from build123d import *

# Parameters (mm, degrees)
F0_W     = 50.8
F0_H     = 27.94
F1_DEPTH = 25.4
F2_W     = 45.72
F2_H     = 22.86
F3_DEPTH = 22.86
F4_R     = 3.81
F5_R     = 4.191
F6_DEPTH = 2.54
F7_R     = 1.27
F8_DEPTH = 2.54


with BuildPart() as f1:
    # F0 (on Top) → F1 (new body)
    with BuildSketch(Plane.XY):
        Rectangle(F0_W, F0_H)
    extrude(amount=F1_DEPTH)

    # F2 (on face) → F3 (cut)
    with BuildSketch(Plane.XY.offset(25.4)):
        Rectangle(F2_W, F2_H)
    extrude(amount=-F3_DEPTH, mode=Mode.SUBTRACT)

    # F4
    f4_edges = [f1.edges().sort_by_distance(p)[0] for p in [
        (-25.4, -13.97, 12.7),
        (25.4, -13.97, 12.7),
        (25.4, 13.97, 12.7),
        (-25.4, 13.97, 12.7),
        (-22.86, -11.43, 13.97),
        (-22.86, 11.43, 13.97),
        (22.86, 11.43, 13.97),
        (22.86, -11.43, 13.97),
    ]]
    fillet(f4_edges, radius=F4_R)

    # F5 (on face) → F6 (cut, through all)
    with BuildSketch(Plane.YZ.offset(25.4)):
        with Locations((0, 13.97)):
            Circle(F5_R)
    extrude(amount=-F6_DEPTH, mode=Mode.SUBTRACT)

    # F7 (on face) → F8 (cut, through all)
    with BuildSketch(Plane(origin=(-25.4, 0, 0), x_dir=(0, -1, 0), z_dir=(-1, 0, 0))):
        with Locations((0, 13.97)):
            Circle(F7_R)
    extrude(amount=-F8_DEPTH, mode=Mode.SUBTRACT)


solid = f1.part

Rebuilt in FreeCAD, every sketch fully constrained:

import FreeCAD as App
import Part
import Sketcher
from FreeCAD import Vector
Q = App.Units.Quantity


def edges_at(feature, points):
    """Names of the edges that pass closest to the given points."""
    edges = feature.Shape.Edges
    near = lambda p: min(range(len(edges)), key=lambda i: edges[i].distToShape(Part.Vertex(*p))[0])
    return sorted({f"Edge{near(p) + 1}" for p in points})

doc = App.newDocument("Part")
params = doc.addObject("Spreadsheet::Sheet", "Params")
for row, (alias, value) in enumerate([
    ("sketch1_width", "2 in"),
    ("sketch1_height", "1.1 in"),
    ("pad1_length", "1 in"),
    ("sketch2_width", "1.8 in"),
    ("sketch2_height", "0.9 in"),
    ("pocket1_length", "0.9 in"),
    ("fillet_radius", "0.15 in"),
    ("sketch3_diameter", "0.33 in"),
    ("pocket2_length", "0.1 in"),
    ("sketch4_diameter", "0.1 in"),
], start=1):
    params.set(f"A{row}", alias)
    params.set(f"B{row}", "=" + value)
    params.setAlias(f"B{row}", alias)

body = doc.addObject("PartDesign::Body", "Body")

# Sketch on XY plane
sketch1 = body.newObject("Sketcher::SketchObject", "Sketch")
sketch1.AttachmentSupport = (doc.getObject("XY_Plane"), [""])
sketch1.MapMode = "FlatFace"
sketch1.addGeometry(Part.LineSegment(Vector(-25, 14, 0), Vector(-25, -14, 0)), False)
sketch1.addGeometry(Part.LineSegment(Vector(-25, -14, 0), Vector(25, -14, 0)), False)
sketch1.addGeometry(Part.LineSegment(Vector(25, -14, 0), Vector(25, 14, 0)), False)
sketch1.addGeometry(Part.LineSegment(Vector(25, 14, 0), Vector(-25, 14, 0)), False)
sketch1.addConstraint(Sketcher.Constraint("Coincident", 0, 2, 1, 1))
sketch1.addConstraint(Sketcher.Constraint("Coincident", 1, 2, 2, 1))
sketch1.addConstraint(Sketcher.Constraint("Coincident", 2, 2, 3, 1))
sketch1.addConstraint(Sketcher.Constraint("Coincident", 3, 2, 0, 1))
sketch1.addConstraint(Sketcher.Constraint("Vertical", 0))
sketch1.addConstraint(Sketcher.Constraint("Horizontal", 1))
sketch1.addConstraint(Sketcher.Constraint("Vertical", 2))
sketch1.addConstraint(Sketcher.Constraint("Horizontal", 3))
sketch1.addConstraint(Sketcher.Constraint("Symmetric", 0, 2, 2, 2, -1, 1))
sketch1.addConstraint(Sketcher.Constraint("DistanceX", 1, 1, 1, 2, Q("2 in")))
sketch1.addConstraint(Sketcher.Constraint("DistanceY", 0, 2, 0, 1, Q("1.1 in")))
sketch1.setExpression("Constraints[9]", "Params.sketch1_width")
sketch1.setExpression("Constraints[10]", "Params.sketch1_height")
pad1 = body.newObject("PartDesign::Pad", "Pad")
pad1.Profile = sketch1
pad1.setExpression("Length", "Params.pad1_length")

# Sketch on XY plane
sketch2 = body.newObject("Sketcher::SketchObject", "Sketch001")
sketch2.AttachmentSupport = (doc.getObject("XY_Plane"), [""])
sketch2.MapMode = "FlatFace"
sketch2.AttachmentOffset = App.Placement(Vector(0, 0, 1 * 25.4), App.Rotation())
sketch2.addGeometry(Part.LineSegment(Vector(-23, 11, 0), Vector(-23, -11, 0)), False)
sketch2.addGeometry(Part.LineSegment(Vector(-23, -11, 0), Vector(23, -11, 0)), False)
sketch2.addGeometry(Part.LineSegment(Vector(23, -11, 0), Vector(23, 11, 0)), False)
sketch2.addGeometry(Part.LineSegment(Vector(23, 11, 0), Vector(-23, 11, 0)), False)
sketch2.addConstraint(Sketcher.Constraint("Coincident", 0, 2, 1, 1))
sketch2.addConstraint(Sketcher.Constraint("Coincident", 1, 2, 2, 1))
sketch2.addConstraint(Sketcher.Constraint("Coincident", 2, 2, 3, 1))
sketch2.addConstraint(Sketcher.Constraint("Coincident", 3, 2, 0, 1))
sketch2.addConstraint(Sketcher.Constraint("Vertical", 0))
sketch2.addConstraint(Sketcher.Constraint("Horizontal", 1))
sketch2.addConstraint(Sketcher.Constraint("Vertical", 2))
sketch2.addConstraint(Sketcher.Constraint("Horizontal", 3))
sketch2.addConstraint(Sketcher.Constraint("Symmetric", 0, 2, 2, 2, -1, 1))
sketch2.addConstraint(Sketcher.Constraint("DistanceX", 1, 1, 1, 2, Q("1.8 in")))
sketch2.addConstraint(Sketcher.Constraint("DistanceY", 0, 2, 0, 1, Q("0.9 in")))
sketch2.setExpression("Constraints[9]", "Params.sketch2_width")
sketch2.setExpression("Constraints[10]", "Params.sketch2_height")
pocket1 = body.newObject("PartDesign::Pocket", "Pocket")
pocket1.Profile = sketch2
pocket1.setExpression("Length", "Params.pocket1_length")
doc.recompute()

fillet = body.newObject("PartDesign::Fillet", "Fillet")
fillet.Base = (pocket1, edges_at(pocket1, [
    (-25.4, -13.97, 12.7),
    (25.4, -13.97, 12.7),
    (25.4, 13.97, 12.7),
    (-25.4, 13.97, 12.7),
    (-22.86, -11.43, 13.97),
    (-22.86, 11.43, 13.97),
    (22.86, 11.43, 13.97),
    (22.86, -11.43, 13.97),
]))
fillet.setExpression("Radius", "Params.fillet_radius")

# Sketch on YZ plane
sketch3 = body.newObject("Sketcher::SketchObject", "Sketch002")
sketch3.AttachmentSupport = (doc.getObject("YZ_Plane"), [""])
sketch3.MapMode = "FlatFace"
sketch3.AttachmentOffset = App.Placement(Vector(0, 0, 1 * 25.4), App.Rotation())
sketch3.addGeometry(Part.Circle(Vector(0, 14, 0), Vector(0, 0, 1), 4.2), False)
sketch3.addConstraint(Sketcher.Constraint("PointOnObject", 0, 3, -2))
sketch3.addConstraint(Sketcher.Constraint("Diameter", 0, Q("0.33 in")))
sketch3.addConstraint(Sketcher.Constraint("DistanceY", -1, 1, 0, 3, Q("0.55 in")))
sketch3.setExpression("Constraints[1]", "Params.sketch3_diameter")
pocket2 = body.newObject("PartDesign::Pocket", "Pocket001")
pocket2.Profile = sketch3
pocket2.setExpression("Length", "Params.pocket2_length")

# Sketch on YZ plane
sketch4 = body.newObject("Sketcher::SketchObject", "Sketch003")
sketch4.AttachmentSupport = (doc.getObject("YZ_Plane"), [""])
sketch4.MapMode = "FlatFace"
sketch4.AttachmentOffset = App.Placement(Vector(0, 0, -1 * 25.4), App.Rotation())
sketch4.addGeometry(Part.Circle(Vector(0, 14, 0), Vector(0, 0, 1), 1.3), False)
sketch4.addConstraint(Sketcher.Constraint("PointOnObject", 0, 3, -2))
sketch4.addConstraint(Sketcher.Constraint("Diameter", 0, Q("0.1 in")))
sketch4.addConstraint(Sketcher.Constraint("DistanceY", -1, 1, 0, 3, Q("0.55 in")))
sketch4.setExpression("Constraints[1]", "Params.sketch4_diameter")
pocket3 = body.newObject("PartDesign::Pocket", "Pocket002")
pocket3.Profile = sketch4
pocket3.Type = "ThroughAll"
pocket3.Reversed = True

doc.recompute()
